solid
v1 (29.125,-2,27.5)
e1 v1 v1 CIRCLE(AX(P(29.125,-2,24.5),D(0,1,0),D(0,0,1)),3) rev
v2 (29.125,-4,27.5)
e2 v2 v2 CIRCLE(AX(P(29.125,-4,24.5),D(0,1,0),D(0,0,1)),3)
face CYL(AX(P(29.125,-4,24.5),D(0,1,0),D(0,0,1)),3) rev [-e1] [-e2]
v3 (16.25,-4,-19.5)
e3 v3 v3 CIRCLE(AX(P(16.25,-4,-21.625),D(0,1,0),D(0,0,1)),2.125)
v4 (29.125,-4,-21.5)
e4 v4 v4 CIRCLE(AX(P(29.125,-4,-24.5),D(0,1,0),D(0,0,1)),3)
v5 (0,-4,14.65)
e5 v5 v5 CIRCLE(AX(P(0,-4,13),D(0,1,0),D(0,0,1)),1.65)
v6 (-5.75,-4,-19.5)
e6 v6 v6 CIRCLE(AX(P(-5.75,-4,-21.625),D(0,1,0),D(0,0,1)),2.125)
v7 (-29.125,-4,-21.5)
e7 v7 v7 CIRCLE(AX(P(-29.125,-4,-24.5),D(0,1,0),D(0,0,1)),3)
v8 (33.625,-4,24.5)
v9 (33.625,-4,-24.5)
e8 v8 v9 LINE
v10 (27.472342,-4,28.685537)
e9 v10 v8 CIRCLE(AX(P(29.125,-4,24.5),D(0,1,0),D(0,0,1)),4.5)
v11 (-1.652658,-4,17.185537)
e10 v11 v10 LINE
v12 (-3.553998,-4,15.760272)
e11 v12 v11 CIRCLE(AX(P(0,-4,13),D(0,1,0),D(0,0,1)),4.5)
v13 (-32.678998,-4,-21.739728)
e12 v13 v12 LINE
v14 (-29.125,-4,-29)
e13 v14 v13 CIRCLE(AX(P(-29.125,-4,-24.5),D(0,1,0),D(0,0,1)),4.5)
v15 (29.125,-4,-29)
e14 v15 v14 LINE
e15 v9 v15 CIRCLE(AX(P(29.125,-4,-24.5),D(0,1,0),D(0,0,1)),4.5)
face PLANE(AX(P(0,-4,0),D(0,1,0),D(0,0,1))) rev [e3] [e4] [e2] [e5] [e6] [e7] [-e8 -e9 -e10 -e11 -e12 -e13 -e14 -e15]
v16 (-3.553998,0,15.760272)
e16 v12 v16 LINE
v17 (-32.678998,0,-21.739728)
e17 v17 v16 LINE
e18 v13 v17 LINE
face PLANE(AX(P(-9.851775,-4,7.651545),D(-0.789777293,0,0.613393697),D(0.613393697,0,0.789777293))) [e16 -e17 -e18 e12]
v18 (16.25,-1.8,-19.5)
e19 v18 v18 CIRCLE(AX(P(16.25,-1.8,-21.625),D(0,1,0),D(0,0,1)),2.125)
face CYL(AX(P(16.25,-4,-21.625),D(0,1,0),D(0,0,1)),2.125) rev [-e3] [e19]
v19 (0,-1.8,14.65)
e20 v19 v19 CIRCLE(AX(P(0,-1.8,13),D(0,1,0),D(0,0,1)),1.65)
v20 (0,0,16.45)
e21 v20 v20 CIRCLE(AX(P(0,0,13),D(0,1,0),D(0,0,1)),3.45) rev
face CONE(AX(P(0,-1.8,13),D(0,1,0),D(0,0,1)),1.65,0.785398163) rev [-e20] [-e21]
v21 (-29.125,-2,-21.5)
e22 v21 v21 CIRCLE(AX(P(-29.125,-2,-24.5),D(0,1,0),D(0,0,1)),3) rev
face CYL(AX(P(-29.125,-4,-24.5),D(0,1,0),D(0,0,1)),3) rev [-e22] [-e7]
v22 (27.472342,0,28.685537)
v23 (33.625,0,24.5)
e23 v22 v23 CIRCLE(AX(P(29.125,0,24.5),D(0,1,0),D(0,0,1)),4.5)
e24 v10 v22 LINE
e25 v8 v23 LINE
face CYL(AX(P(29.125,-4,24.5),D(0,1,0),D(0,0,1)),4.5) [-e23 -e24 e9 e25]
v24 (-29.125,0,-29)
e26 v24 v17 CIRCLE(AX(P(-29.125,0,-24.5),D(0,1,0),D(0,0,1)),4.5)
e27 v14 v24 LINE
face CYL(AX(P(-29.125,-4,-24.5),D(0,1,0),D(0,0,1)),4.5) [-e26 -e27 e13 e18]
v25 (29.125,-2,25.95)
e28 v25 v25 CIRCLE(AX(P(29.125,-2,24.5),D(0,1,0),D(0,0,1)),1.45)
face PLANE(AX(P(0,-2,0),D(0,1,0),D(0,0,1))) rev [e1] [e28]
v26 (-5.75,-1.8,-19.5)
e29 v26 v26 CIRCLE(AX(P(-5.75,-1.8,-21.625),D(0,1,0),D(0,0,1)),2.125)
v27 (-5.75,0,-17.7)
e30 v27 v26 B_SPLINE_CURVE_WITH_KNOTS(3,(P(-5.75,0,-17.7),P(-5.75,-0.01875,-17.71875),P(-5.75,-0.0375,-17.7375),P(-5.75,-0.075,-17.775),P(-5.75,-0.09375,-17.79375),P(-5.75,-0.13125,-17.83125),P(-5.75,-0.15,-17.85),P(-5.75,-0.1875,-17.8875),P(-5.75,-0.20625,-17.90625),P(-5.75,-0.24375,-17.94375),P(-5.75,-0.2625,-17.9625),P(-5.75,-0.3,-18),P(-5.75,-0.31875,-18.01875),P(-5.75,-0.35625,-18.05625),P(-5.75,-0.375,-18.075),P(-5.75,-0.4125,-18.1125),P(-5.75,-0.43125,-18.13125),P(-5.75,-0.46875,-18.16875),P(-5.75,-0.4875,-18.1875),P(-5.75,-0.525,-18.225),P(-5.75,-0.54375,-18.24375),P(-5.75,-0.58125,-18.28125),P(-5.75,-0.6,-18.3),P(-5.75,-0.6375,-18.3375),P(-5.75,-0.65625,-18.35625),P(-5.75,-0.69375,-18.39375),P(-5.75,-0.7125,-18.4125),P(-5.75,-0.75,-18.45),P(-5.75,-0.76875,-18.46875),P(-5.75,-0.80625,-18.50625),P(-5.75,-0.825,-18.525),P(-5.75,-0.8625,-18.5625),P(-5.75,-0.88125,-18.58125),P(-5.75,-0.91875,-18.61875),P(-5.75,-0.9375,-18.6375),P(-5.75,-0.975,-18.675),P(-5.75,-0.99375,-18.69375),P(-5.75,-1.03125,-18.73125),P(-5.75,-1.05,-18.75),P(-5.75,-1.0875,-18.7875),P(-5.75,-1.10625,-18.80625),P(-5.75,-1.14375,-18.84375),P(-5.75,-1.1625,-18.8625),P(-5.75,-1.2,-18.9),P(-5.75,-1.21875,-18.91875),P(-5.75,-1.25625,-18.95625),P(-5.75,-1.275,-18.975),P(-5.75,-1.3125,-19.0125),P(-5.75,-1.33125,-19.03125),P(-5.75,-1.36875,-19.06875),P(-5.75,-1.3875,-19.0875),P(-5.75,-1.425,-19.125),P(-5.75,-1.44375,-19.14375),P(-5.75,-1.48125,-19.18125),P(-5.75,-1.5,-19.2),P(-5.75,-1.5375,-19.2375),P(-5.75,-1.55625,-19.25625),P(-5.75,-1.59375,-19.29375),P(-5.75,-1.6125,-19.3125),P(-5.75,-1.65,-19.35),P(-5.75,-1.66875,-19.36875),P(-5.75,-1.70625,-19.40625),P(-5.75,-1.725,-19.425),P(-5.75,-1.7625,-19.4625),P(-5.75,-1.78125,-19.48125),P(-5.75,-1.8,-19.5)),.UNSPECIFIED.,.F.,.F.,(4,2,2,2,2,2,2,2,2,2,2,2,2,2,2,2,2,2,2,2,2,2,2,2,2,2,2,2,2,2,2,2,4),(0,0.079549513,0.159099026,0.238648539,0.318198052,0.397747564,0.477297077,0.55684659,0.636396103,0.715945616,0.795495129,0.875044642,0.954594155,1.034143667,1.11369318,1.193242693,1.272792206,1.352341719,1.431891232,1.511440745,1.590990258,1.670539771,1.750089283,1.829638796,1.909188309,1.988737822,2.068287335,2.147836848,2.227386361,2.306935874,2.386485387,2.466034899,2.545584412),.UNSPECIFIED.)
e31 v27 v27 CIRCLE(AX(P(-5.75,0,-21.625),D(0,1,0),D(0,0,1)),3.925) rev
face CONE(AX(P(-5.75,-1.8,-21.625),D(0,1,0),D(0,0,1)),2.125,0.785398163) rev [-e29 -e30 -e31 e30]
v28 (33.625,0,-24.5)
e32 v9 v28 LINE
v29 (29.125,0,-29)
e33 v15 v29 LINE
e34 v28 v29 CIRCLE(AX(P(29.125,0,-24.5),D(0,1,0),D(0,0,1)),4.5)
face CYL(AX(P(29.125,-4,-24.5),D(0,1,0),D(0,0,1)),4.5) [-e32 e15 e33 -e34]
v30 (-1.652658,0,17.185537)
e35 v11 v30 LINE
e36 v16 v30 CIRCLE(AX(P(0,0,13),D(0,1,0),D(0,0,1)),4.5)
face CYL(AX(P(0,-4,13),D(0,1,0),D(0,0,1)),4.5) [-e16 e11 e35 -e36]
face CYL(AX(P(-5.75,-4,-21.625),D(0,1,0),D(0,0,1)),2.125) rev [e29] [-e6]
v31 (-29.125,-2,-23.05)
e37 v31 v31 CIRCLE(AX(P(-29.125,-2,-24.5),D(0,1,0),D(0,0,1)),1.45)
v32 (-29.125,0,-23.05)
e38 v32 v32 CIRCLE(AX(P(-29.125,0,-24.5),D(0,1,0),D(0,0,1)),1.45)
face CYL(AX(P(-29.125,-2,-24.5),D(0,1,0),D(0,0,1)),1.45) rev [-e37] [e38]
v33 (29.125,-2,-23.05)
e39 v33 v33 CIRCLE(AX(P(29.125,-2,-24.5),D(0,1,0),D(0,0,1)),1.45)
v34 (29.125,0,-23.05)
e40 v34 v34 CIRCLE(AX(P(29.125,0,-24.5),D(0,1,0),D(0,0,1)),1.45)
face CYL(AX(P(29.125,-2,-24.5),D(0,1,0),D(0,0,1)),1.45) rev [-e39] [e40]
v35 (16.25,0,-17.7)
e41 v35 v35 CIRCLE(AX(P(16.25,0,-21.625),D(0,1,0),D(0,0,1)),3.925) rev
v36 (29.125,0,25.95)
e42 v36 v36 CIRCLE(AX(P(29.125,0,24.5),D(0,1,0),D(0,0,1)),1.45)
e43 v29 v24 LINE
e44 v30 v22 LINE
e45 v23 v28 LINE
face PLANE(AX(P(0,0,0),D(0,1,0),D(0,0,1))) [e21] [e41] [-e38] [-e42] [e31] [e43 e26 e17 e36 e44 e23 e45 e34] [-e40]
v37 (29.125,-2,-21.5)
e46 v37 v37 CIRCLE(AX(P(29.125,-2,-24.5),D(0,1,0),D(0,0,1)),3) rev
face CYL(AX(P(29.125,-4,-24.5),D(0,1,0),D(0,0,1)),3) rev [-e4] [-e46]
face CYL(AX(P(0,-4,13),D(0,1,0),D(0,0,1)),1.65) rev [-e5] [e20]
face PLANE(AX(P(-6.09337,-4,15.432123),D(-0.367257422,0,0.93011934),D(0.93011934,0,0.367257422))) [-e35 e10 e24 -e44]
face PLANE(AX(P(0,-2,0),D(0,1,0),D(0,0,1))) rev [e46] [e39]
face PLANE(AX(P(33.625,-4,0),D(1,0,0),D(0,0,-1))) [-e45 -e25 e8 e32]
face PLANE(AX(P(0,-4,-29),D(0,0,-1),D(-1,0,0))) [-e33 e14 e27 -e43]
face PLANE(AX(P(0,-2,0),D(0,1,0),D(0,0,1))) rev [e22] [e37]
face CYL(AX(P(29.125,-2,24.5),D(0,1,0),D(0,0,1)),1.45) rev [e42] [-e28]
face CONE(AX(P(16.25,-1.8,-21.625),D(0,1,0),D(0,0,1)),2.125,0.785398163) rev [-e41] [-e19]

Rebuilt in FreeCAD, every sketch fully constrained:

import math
import FreeCAD as App
import Part
import Sketcher
from FreeCAD import Vector


def edges_at(feature, points):
    """Names of the edges that pass closest to the given points."""
    edges = feature.Shape.Edges
    near = lambda p: min(range(len(edges)), key=lambda i: edges[i].distToShape(Part.Vertex(*p))[0])
    return sorted({f"Edge{near(p) + 1}" for p in points})

doc = App.newDocument("Part")
body = doc.addObject("PartDesign::Body", "Body")

# Sketch on XZ plane
sketch1 = body.newObject("Sketcher::SketchObject", "Sketch")
sketch1.AttachmentSupport = (doc.getObject("XZ_Plane"), [""])
sketch1.MapMode = "FlatFace"
sketch1.addGeometry([
    Part.LineSegment(Vector(29.125, -29, 0), Vector(-29.125, -29, 0)),  # 0
    Part.ArcOfCircle(Part.Circle(Vector(-29.125, -24.5, 0), Vector(0, 0, 1), 4.5), math.radians(142.164704), math.radians(270)),  # 1
    Part.LineSegment(Vector(-32.678998, -21.739728, 0), Vector(-3.553998, 15.760272, 0)),  # 2
    Part.ArcOfCircle(Part.Circle(Vector(0, 13, 0), Vector(0, 0, 1), 4.5), math.radians(111.546575), math.radians(142.164704)),  # 3
    Part.LineSegment(Vector(-1.652658, 17.185537, 0), Vector(27.472342, 28.685537, 0)),  # 4
    Part.ArcOfCircle(Part.Circle(Vector(29.125, 24.5, 0), Vector(0, 0, 1), 4.5), math.radians(0), math.radians(111.546574)),  # 5
    Part.LineSegment(Vector(33.625, 24.5, 0), Vector(33.625, -24.5, 0)),  # 6
    Part.ArcOfCircle(Part.Circle(Vector(29.125, -24.5, 0), Vector(0, 0, 1), 4.5), math.radians(-90), math.radians(0)),  # 7
    Part.Circle(Vector(29.125, 24.5, 0), Vector(0, 0, 1), 3),  # 8
    Part.Circle(Vector(0, 13, 0), Vector(0, 0, 1), 1.65),  # 9
    Part.Circle(Vector(-29.125, -24.5, 0), Vector(0, 0, 1), 3),  # 10
    Part.Circle(Vector(-5.75, -21.625, 0), Vector(0, 0, 1), 2.125),  # 11
    Part.Circle(Vector(16.25, -21.625, 0), Vector(0, 0, 1), 2.125),  # 12
    Part.Circle(Vector(29.125, -24.5, 0), Vector(0, 0, 1), 3),  # 13
], False)
sketch1.addConstraint([
    Sketcher.Constraint("Tangent", 0, 2, 1, 2),
    Sketcher.Constraint("Tangent", 1, 1, 2, 1),
    Sketcher.Constraint("Tangent", 2, 2, 3, 2),
    Sketcher.Constraint("Tangent", 3, 1, 4, 1),
    Sketcher.Constraint("Tangent", 4, 2, 5, 2),
    Sketcher.Constraint("Tangent", 5, 1, 6, 1),
    Sketcher.Constraint("Tangent", 6, 2, 7, 2),
    Sketcher.Constraint("Tangent", 7, 1, 0, 1),
    Sketcher.Constraint("Horizontal", 0),
    Sketcher.Constraint("Vertical", 6),
    Sketcher.Constraint("Coincident", 8, 3, 5, 3),
    Sketcher.Constraint("Coincident", 9, 3, 3, 3),
    Sketcher.Constraint("Coincident", 10, 3, 1, 3),
    Sketcher.Constraint("Coincident", 13, 3, 7, 3),
    Sketcher.Constraint("Equal", 1, 3),
    Sketcher.Constraint("Equal", 3, 5),
    Sketcher.Constraint("Equal", 5, 7),
    Sketcher.Constraint("Equal", 8, 10),
    Sketcher.Constraint("Equal", 11, 12),
    Sketcher.Constraint("Equal", 10, 13),
    Sketcher.Constraint("Symmetric", 1, 3, 5, 3, -1, 1),
    Sketcher.Constraint("PointOnObject", 3, 3, -2),
    Sketcher.Constraint("Horizontal", 11, 3, 12, 3),
    Sketcher.Constraint("Diameter", 8, 6.0),
    Sketcher.Constraint("Diameter", 9, 3.3),
    Sketcher.Constraint("Radius", 1, 4.5),
    Sketcher.Constraint("Diameter", 11, 4.25),
    Sketcher.Constraint("DistanceY", 6, 2, 6, 1, 49.0),
    Sketcher.Constraint("DistanceY", -1, 1, 3, 3, 13.0),
    Sketcher.Constraint("DistanceX", 11, 3, 12, 3, 22.0),
    Sketcher.Constraint("DistanceX", 0, 2, 0, 1, 58.25),
    Sketcher.Constraint("DistanceX", 11, 3, -1, 1, 5.75),
    Sketcher.Constraint("DistanceY", 11, 3, -1, 1, 21.625),
])
pad1 = body.newObject("PartDesign::Pad", "Pad")
pad1.Profile = sketch1
pad1.Length = 4

# Sketch on XZ plane
sketch2 = body.newObject("Sketcher::SketchObject", "Sketch001")
sketch2.AttachmentSupport = (doc.getObject("XZ_Plane"), [""])
sketch2.MapMode = "FlatFace"
sketch2.addGeometry([
    Part.Circle(Vector(29.125, 24.5, 0), Vector(0, 0, 1), 3),  # 0
    Part.Circle(Vector(29.125, 24.5, 0), Vector(0, 0, 1), 1.45),  # 1
    Part.Circle(Vector(-29.125, -24.5, 0), Vector(0, 0, 1), 3),  # 2
    Part.Circle(Vector(-29.125, -24.5, 0), Vector(0, 0, 1), 1.45),  # 3
    Part.Circle(Vector(29.125, -24.5, 0), Vector(0, 0, 1), 3),  # 4
    Part.Circle(Vector(29.125, -24.5, 0), Vector(0, 0, 1), 1.45),  # 5
], False)
sketch2.addConstraint([
    Sketcher.Constraint("Coincident", 1, 3, 0, 3),
    Sketcher.Constraint("Coincident", 3, 3, 2, 3),
    Sketcher.Constraint("Coincident", 5, 3, 4, 3),
    Sketcher.Constraint("Equal", 0, 2),
    Sketcher.Constraint("Equal", 1, 3),
    Sketcher.Constraint("Equal", 2, 4),
    Sketcher.Constraint("Equal", 3, 5),
    Sketcher.Constraint("Symmetric", 0, 3, 2, 3, -1, 1),
    Sketcher.Constraint("Symmetric", 2, 3, 4, 3, -2),
    Sketcher.Constraint("Diameter", 0, 6.0),
    Sketcher.Constraint("Diameter", 1, 2.9),
    Sketcher.Constraint("DistanceY", 2, 3, 0, 3, 49.0),
    Sketcher.Constraint("DistanceX", 2, 3, 0, 3, 58.25),
])
pad2 = body.newObject("PartDesign::Pad", "Pad001")
pad2.Profile = sketch2
pad2.Length = 2
doc.recompute()

chamfer = body.newObject("PartDesign::Chamfer", "Chamfer")
chamfer.Base = (pad2, edges_at(pad2, [(0, 0, 11.35), (-5.75, 0, -23.75), (16.25, 0, -23.75)]))
chamfer.Size = 1.8

doc.recompute()
